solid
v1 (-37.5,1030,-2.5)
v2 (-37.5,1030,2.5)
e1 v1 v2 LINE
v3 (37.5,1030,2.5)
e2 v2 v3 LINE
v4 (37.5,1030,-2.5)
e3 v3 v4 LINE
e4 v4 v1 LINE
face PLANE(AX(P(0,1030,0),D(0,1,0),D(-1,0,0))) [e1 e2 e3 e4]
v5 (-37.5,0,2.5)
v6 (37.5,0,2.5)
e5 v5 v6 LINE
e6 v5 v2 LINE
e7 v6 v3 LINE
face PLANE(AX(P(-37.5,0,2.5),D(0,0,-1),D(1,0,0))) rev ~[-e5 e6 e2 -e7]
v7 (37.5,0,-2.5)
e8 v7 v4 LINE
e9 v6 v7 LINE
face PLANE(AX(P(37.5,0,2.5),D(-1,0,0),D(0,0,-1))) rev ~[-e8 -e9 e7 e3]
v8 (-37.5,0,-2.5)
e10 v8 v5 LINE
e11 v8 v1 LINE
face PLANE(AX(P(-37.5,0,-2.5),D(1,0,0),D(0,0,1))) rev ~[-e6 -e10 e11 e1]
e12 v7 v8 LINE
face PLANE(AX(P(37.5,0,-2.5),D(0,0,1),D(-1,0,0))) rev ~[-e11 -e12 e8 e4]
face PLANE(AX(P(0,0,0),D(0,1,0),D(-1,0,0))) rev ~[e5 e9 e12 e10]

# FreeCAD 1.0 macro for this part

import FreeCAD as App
import Part
import Sketcher

doc = App.newDocument("Part")
body = doc.addObject("PartDesign::Body", "Body")

# Sketch on XZ plane
sketch1 = body.newObject("Sketcher::SketchObject", "Sketch")
sketch1.AttachmentSupport = (doc.getObject("XZ_Plane"), [""])
sketch1.MapMode = "FlatFace"
sketch1.addGeometry([
    Part.LineSegment(App.Vector(-38, -2, 0), App.Vector(-38, 2, 0)),
    Part.LineSegment(App.Vector(-38, 2, 0), App.Vector(38, 2, 0)),
    Part.LineSegment(App.Vector(38, 2, 0), App.Vector(38, -2, 0)),
    Part.LineSegment(App.Vector(38, -2, 0), App.Vector(-38, -2, 0)),
], False)
sketch1.addConstraint([
    Sketcher.Constraint("Coincident", 0, 2, 1, 1),
    Sketcher.Constraint("Coincident", 1, 2, 2, 1),
    Sketcher.Constraint("Coincident", 2, 2, 3, 1),
    Sketcher.Constraint("Coincident", 3, 2, 0, 1),
    Sketcher.Constraint("Vertical", 0),
    Sketcher.Constraint("Horizontal", 1),
    Sketcher.Constraint("Vertical", 2),
    Sketcher.Constraint("Horizontal", 3),
    Sketcher.Constraint("Symmetric", 0, 2, 2, 2, -1, 1),
    Sketcher.Constraint("DistanceX", 1, 1, 1, 2, 75.0),
    Sketcher.Constraint("DistanceY", 0, 1, 0, 2, 5.0),
])
pad1 = body.newObject("PartDesign::Pad", "Pad")
pad1.Profile = sketch1
pad1.Length = 1030
pad1.Reversed = True

doc.recompute()
